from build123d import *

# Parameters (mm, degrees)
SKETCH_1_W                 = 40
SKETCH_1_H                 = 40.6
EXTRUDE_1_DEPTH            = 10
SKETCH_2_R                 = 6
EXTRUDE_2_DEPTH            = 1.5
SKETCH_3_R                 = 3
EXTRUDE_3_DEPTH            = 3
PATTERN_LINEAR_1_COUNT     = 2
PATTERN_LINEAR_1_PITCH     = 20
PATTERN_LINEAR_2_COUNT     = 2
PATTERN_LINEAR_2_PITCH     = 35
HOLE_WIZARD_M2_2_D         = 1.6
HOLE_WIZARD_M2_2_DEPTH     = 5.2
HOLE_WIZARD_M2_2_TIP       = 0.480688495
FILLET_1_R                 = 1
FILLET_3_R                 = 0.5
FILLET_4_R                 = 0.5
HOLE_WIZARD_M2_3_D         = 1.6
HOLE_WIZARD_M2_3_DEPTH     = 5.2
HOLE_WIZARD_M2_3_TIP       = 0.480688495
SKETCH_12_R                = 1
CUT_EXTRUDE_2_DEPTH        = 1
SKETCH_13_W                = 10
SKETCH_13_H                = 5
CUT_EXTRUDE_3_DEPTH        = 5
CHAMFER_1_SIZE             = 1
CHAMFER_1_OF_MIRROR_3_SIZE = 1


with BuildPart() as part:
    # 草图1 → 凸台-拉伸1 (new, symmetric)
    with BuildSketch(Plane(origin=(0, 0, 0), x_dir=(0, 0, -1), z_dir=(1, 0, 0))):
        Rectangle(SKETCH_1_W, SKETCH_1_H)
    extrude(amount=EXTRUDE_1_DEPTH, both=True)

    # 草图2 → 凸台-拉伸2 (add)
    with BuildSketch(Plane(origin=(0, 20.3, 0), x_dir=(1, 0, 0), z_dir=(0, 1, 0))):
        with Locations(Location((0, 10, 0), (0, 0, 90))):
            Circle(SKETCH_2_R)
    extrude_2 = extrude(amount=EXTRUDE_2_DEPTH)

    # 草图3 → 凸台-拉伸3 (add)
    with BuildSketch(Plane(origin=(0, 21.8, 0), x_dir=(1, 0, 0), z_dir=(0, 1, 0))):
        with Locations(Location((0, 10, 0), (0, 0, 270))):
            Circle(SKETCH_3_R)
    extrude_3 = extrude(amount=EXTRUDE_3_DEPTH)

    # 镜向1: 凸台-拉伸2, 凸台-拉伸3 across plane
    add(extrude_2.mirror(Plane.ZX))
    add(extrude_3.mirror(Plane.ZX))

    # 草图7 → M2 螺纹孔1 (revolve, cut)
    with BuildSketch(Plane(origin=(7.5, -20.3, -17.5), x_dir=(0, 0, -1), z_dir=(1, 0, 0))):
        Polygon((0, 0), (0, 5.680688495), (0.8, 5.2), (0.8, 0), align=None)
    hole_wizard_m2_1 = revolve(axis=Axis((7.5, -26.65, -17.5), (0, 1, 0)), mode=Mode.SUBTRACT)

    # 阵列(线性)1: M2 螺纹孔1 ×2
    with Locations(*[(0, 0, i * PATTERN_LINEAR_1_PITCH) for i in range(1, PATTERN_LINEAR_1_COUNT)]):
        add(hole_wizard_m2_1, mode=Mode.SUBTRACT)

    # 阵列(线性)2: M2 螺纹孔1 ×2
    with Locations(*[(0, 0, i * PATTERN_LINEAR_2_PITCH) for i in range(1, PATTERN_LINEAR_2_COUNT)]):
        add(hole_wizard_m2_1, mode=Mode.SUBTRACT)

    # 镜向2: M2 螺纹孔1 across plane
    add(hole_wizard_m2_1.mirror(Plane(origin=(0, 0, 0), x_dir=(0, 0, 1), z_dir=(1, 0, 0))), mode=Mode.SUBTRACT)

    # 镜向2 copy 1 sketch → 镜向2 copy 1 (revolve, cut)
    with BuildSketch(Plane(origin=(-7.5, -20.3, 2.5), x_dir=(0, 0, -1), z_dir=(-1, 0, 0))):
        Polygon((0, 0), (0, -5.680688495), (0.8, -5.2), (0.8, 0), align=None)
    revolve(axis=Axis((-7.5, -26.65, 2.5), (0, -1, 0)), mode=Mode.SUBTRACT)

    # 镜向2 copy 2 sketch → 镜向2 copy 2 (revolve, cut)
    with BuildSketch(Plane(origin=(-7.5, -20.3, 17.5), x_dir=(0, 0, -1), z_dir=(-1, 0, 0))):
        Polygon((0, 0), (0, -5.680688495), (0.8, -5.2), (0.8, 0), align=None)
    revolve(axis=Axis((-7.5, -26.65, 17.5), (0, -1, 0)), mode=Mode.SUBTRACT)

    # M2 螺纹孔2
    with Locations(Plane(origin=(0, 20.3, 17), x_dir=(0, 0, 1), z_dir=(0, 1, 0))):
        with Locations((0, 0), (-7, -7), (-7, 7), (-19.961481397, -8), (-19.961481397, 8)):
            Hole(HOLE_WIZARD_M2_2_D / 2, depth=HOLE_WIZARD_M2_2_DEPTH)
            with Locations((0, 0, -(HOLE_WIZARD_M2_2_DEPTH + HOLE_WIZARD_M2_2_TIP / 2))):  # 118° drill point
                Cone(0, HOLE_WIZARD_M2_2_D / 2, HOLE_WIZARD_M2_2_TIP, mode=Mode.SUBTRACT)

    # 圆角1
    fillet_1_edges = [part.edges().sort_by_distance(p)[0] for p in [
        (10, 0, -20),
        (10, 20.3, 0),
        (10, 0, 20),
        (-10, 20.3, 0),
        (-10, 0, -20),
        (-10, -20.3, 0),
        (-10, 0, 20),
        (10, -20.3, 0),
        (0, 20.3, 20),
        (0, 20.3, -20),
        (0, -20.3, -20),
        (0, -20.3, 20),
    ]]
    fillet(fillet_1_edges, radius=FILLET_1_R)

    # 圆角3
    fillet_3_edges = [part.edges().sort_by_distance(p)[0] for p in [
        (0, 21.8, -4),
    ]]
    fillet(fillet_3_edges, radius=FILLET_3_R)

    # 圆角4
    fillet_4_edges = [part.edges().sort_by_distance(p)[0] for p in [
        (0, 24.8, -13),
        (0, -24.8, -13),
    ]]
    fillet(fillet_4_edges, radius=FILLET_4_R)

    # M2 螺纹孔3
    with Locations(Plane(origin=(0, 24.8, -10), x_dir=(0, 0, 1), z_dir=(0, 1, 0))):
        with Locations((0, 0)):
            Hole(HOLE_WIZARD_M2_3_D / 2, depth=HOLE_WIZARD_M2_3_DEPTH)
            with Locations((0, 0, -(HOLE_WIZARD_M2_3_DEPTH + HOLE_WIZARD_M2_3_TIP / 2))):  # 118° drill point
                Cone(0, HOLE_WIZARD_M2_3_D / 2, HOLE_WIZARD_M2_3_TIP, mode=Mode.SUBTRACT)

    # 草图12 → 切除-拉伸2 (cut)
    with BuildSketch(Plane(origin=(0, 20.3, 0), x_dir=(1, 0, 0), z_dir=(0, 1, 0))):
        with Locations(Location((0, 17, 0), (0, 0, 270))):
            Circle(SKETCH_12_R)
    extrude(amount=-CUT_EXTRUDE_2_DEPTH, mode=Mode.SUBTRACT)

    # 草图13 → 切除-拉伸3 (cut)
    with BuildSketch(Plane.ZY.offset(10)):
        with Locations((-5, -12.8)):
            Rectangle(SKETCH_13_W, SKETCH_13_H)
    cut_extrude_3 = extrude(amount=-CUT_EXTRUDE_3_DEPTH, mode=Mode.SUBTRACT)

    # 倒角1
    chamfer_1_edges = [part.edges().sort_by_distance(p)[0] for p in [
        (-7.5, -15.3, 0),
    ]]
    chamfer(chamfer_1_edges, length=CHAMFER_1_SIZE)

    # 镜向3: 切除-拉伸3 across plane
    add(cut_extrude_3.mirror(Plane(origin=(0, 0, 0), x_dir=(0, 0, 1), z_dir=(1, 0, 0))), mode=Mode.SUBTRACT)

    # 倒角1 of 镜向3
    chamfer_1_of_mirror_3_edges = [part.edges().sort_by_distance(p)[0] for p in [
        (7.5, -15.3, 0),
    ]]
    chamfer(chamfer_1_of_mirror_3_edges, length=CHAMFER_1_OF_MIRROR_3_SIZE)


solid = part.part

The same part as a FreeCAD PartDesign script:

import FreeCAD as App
import Part
import Sketcher

V = App.Vector
Q = App.Units.Quantity


def edges_at(feature, points):
    """Names of the edges that pass closest to the given points."""
    edges = feature.Shape.Edges
    near = lambda p: min(range(len(edges)), key=lambda i: edges[i].distToShape(Part.Vertex(*p))[0])
    return sorted({f"Edge{near(p) + 1}" for p in points})

doc = App.newDocument("Part")
params = doc.addObject("Spreadsheet::Sheet", "Params")
for row, (alias, value) in enumerate([
    ("sketch1_height", "40 mm"),
    ("sketch1_width", "40.6 mm"),
    ("pad1_length", "20 mm"),
    ("sketch2_diameter", "12 mm"),
    ("pad2_length", "1.5 mm"),
    ("sketch3_diameter", "6 mm"),
    ("pad3_length", "3 mm"),
    ("sketch4_width", "5.2 mm"),
    ("sketch4_height", "0.8 mm"),
    ("groove_angle", "360 deg"),
    ("linearpattern_pitch", "20 mm"),
    ("linearpattern2_pitch", "35 mm"),
    ("sketch5_width", "5.2 mm"),
    ("sketch5_height", "0.8 mm"),
    ("groove2_angle", "360 deg"),
    ("sketch6_width", "5.2 mm"),
    ("sketch6_height", "0.8 mm"),
    ("groove3_angle", "360 deg"),
    ("sketch7_diameter", "1.6 mm"),
    ("hole_diameter", "1.6 mm"),
    ("hole_depth", "5.2 mm"),
    ("fillet_radius", "1 mm"),
    ("fillet2_radius", "0.5 mm"),
    ("fillet3_radius", "0.5 mm"),
    ("sketch8_diameter", "1.6 mm"),
    ("hole2_diameter", "1.6 mm"),
    ("hole2_depth", "5.2 mm"),
    ("sketch9_diameter", "2 mm"),
    ("pocket1_length", "1 mm"),
    ("sketch10_width", "5 mm"),
    ("sketch10_height", "10 mm"),
    ("pocket2_length", "5 mm"),
    ("chamfer_size", "1 mm"),
    ("chamfer2_size", "1 mm"),
], start=1):
    params.set(f"A{row}", alias)
    params.set(f"B{row}", "=" + value)
    params.setAlias(f"B{row}", alias)

body = doc.addObject("PartDesign::Body", "Body")

# Sketch on YZ plane
sketch1 = body.newObject("Sketcher::SketchObject", "Sketch")
sketch1.AttachmentSupport = (doc.getObject("YZ_Plane"), [""])
sketch1.MapMode = "FlatFace"
sketch1.addGeometry(Part.LineSegment(V(20, 20, 0), V(-20, 20, 0)), False)
sketch1.addGeometry(Part.LineSegment(V(-20, 20, 0), V(-20, -20, 0)), False)
sketch1.addGeometry(Part.LineSegment(V(-20, -20, 0), V(20, -20, 0)), False)
sketch1.addGeometry(Part.LineSegment(V(20, -20, 0), V(20, 20, 0)), False)
sketch1.addConstraint(Sketcher.Constraint("Coincident", 0, 2, 1, 1))
sketch1.addConstraint(Sketcher.Constraint("Coincident", 1, 2, 2, 1))
sketch1.addConstraint(Sketcher.Constraint("Coincident", 2, 2, 3, 1))
sketch1.addConstraint(Sketcher.Constraint("Coincident", 3, 2, 0, 1))
sketch1.addConstraint(Sketcher.Constraint("Horizontal", 0))
sketch1.addConstraint(Sketcher.Constraint("Vertical", 1))
sketch1.addConstraint(Sketcher.Constraint("Horizontal", 2))
sketch1.addConstraint(Sketcher.Constraint("Vertical", 3))
sketch1.addConstraint(Sketcher.Constraint("Symmetric", 0, 2, 2, 2, -1, 1))
sketch1.addConstraint(Sketcher.Constraint("DistanceY", 1, 2, 1, 1, 40.0))
sketch1.addConstraint(Sketcher.Constraint("DistanceX", 0, 2, 0, 1, 40.6))
sketch1.setExpression("Constraints[9]", "Params.sketch1_height")
sketch1.setExpression("Constraints[10]", "Params.sketch1_width")
pad1 = body.newObject("PartDesign::Pad", "Pad")
pad1.Profile = sketch1
pad1.setExpression("Length", "Params.pad1_length")
pad1.Midplane = True

# Sketch on XZ plane
sketch2 = body.newObject("Sketcher::SketchObject", "Sketch001")
sketch2.AttachmentSupport = (doc.getObject("XZ_Plane"), [""])
sketch2.MapMode = "FlatFace"
sketch2.AttachmentOffset = App.Placement(V(0, 0, -20.3), App.Rotation())
sketch2.addGeometry(Part.Circle(V(0, -10, 0), V(0, 0, 1), 6), False)
sketch2.addConstraint(Sketcher.Constraint("PointOnObject", 0, 3, -2))
sketch2.addConstraint(Sketcher.Constraint("Diameter", 0, 12.0))
sketch2.addConstraint(Sketcher.Constraint("DistanceY", 0, 3, -1, 1, 10.0))
sketch2.setExpression("Constraints[1]", "Params.sketch2_diameter")
pad2 = body.newObject("PartDesign::Pad", "Pad001")
pad2.Profile = sketch2
pad2.setExpression("Length", "Params.pad2_length")
pad2.Reversed = True

# Sketch on XZ plane
sketch3 = body.newObject("Sketcher::SketchObject", "Sketch002")
sketch3.AttachmentSupport = (doc.getObject("XZ_Plane"), [""])
sketch3.MapMode = "FlatFace"
sketch3.AttachmentOffset = App.Placement(V(0, 0, -21.8), App.Rotation())
sketch3.addGeometry(Part.Circle(V(0, -10, 0), V(0, 0, 1), 3), False)
sketch3.addConstraint(Sketcher.Constraint("PointOnObject", 0, 3, -2))
sketch3.addConstraint(Sketcher.Constraint("Diameter", 0, 6.0))
sketch3.addConstraint(Sketcher.Constraint("DistanceY", 0, 3, -1, 1, 10.0))
sketch3.setExpression("Constraints[1]", "Params.sketch3_diameter")
pad3 = body.newObject("PartDesign::Pad", "Pad002")
pad3.Profile = sketch3
pad3.setExpression("Length", "Params.pad3_length")
pad3.Reversed = True
doc.recompute()

mirrored = body.newObject("PartDesign::Mirrored", "Mirrored")
mirrored.Originals = [pad2, pad3]
mirrored.MirrorPlane = (doc.getObject("XZ_Plane"), [""])
body.Tip = mirrored

# Sketch on YZ plane
sketch4 = body.newObject("Sketcher::SketchObject", "Sketch003")
sketch4.AttachmentSupport = (doc.getObject("YZ_Plane"), [""])
sketch4.MapMode = "FlatFace"
sketch4.AttachmentOffset = App.Placement(V(0, 0, 7.5), App.Rotation())
sketch4.addGeometry(Part.LineSegment(V(-14.6, -17.5, 0), V(-20.3, -17.5, 0)), False)
sketch4.addGeometry(Part.LineSegment(V(-20.3, -17.5, 0), V(-20.3, -18.3, 0)), False)
sketch4.addGeometry(Part.LineSegment(V(-20.3, -18.3, 0), V(-15.1, -18.3, 0)), False)
sketch4.addGeometry(Part.LineSegment(V(-15.1, -18.3, 0), V(-14.6, -17.5, 0)), False)
sketch4.addGeometry(Part.LineSegment(V(-20.3, -17.5, 0), V(-14.6, -17.5, 0)), True)  # axis
sketch4.addConstraint(Sketcher.Constraint("Coincident", 0, 2, 1, 1))
sketch4.addConstraint(Sketcher.Constraint("Coincident", 1, 2, 2, 1))
sketch4.addConstraint(Sketcher.Constraint("Coincident", 2, 2, 3, 1))
sketch4.addConstraint(Sketcher.Constraint("Coincident", 3, 2, 0, 1))
sketch4.addConstraint(Sketcher.Constraint("Horizontal", 0))
sketch4.addConstraint(Sketcher.Constraint("Vertical", 1))
sketch4.addConstraint(Sketcher.Constraint("Horizontal", 2))
sketch4.addConstraint(Sketcher.Constraint("Horizontal", 4))
sketch4.addConstraint(Sketcher.Constraint("Coincident", 4, 1, 0, 2))
sketch4.addConstraint(Sketcher.Constraint("Equal", 0, 4))
sketch4.addConstraint(Sketcher.Constraint("Angle", 3, Q("59 deg")))
sketch4.addConstraint(Sketcher.Constraint("DistanceX", 2, 1, 2, 2, 5.2))
sketch4.addConstraint(Sketcher.Constraint("DistanceY", 1, 2, 1, 1, 0.8))
sketch4.addConstraint(Sketcher.Constraint("DistanceX", 0, 2, -1, 1, 20.3))
sketch4.addConstraint(Sketcher.Constraint("DistanceY", 0, 2, -1, 1, 17.5))
sketch4.setExpression("Constraints[11]", "Params.sketch4_width")
sketch4.setExpression("Constraints[12]", "Params.sketch4_height")
groove = body.newObject("PartDesign::Groove", "Groove")
groove.Profile = sketch4
groove.ReferenceAxis = (sketch4, ["Axis0"])
groove.setExpression("Angle", "Params.groove_angle")
doc.recompute()

linearpattern = body.newObject("PartDesign::LinearPattern", "LinearPattern")
linearpattern.Originals = [groove]
linearpattern.Direction = (doc.getObject("Z_Axis"), [""])
linearpattern.Mode = "offset"
linearpattern.setExpression("Offset", "Params.linearpattern_pitch")
linearpattern.Occurrences = 2
body.Tip = linearpattern
doc.recompute()

linearpattern2 = body.newObject("PartDesign::LinearPattern", "LinearPattern001")
linearpattern2.Originals = [groove]
linearpattern2.Direction = (doc.getObject("Z_Axis"), [""])
linearpattern2.Mode = "offset"
linearpattern2.setExpression("Offset", "Params.linearpattern2_pitch")
linearpattern2.Occurrences = 2
body.Tip = linearpattern2
doc.recompute()

mirrored2 = body.newObject("PartDesign::Mirrored", "Mirrored001")
mirrored2.Originals = [groove]
mirrored2.MirrorPlane = (doc.getObject("YZ_Plane"), [""])
body.Tip = mirrored2

# Sketch on YZ plane
sketch5 = body.newObject("Sketcher::SketchObject", "Sketch004")
sketch5.AttachmentSupport = (doc.getObject("YZ_Plane"), [""])
sketch5.MapMode = "FlatFace"
sketch5.AttachmentOffset = App.Placement(V(0, 0, -7.5), App.Rotation())
sketch5.addGeometry(Part.LineSegment(V(-20.3, 2.5, 0), V(-14.6, 2.5, 0)), False)
sketch5.addGeometry(Part.LineSegment(V(-14.6, 2.5, 0), V(-15.1, 1.7, 0)), False)
sketch5.addGeometry(Part.LineSegment(V(-15.1, 1.7, 0), V(-20.3, 1.7, 0)), False)
sketch5.addGeometry(Part.LineSegment(V(-20.3, 1.7, 0), V(-20.3, 2.5, 0)), False)
sketch5.addGeometry(Part.LineSegment(V(-14.6, 2.5, 0), V(-20.3, 2.5, 0)), True)  # axis
sketch5.addConstraint(Sketcher.Constraint("Coincident", 0, 2, 1, 1))
sketch5.addConstraint(Sketcher.Constraint("Coincident", 1, 2, 2, 1))
sketch5.addConstraint(Sketcher.Constraint("Coincident", 2, 2, 3, 1))
sketch5.addConstraint(Sketcher.Constraint("Coincident", 3, 2, 0, 1))
sketch5.addConstraint(Sketcher.Constraint("Horizontal", 0))
sketch5.addConstraint(Sketcher.Constraint("Horizontal", 2))
sketch5.addConstraint(Sketcher.Constraint("Vertical", 3))
sketch5.addConstraint(Sketcher.Constraint("Horizontal", 4))
sketch5.addConstraint(Sketcher.Constraint("Coincident", 4, 1, 0, 2))
sketch5.addConstraint(Sketcher.Constraint("Vertical", 2, 2, 4, 2))
sketch5.addConstraint(Sketcher.Constraint("Angle", 1, Q("-121 deg")))
sketch5.addConstraint(Sketcher.Constraint("DistanceX", 2, 2, 2, 1, 5.2))
sketch5.addConstraint(Sketcher.Constraint("DistanceY", 3, 1, 3, 2, 0.8))
sketch5.addConstraint(Sketcher.Constraint("DistanceY", -1, 1, 0, 2, 2.5))
sketch5.addConstraint(Sketcher.Constraint("DistanceX", 1, 2, -1, 1, 15.1))
sketch5.setExpression("Constraints[11]", "Params.sketch5_width")
sketch5.setExpression("Constraints[12]", "Params.sketch5_height")
groove2 = body.newObject("PartDesign::Groove", "Groove001")
groove2.Profile = sketch5
groove2.ReferenceAxis = (sketch5, ["Axis0"])
groove2.setExpression("Angle", "Params.groove2_angle")

# Sketch on YZ plane
sketch6 = body.newObject("Sketcher::SketchObject", "Sketch005")
sketch6.AttachmentSupport = (doc.getObject("YZ_Plane"), [""])
sketch6.MapMode = "FlatFace"
sketch6.AttachmentOffset = App.Placement(V(0, 0, -7.5), App.Rotation())
sketch6.addGeometry(Part.LineSegment(V(-20.3, 17.5, 0), V(-14.6, 17.5, 0)), False)
sketch6.addGeometry(Part.LineSegment(V(-14.6, 17.5, 0), V(-15.1, 16.7, 0)), False)
sketch6.addGeometry(Part.LineSegment(V(-15.1, 16.7, 0), V(-20.3, 16.7, 0)), False)
sketch6.addGeometry(Part.LineSegment(V(-20.3, 16.7, 0), V(-20.3, 17.5, 0)), False)
sketch6.addGeometry(Part.LineSegment(V(-14.6, 17.5, 0), V(-20.3, 17.5, 0)), True)  # axis
sketch6.addConstraint(Sketcher.Constraint("Coincident", 0, 2, 1, 1))
sketch6.addConstraint(Sketcher.Constraint("Coincident", 1, 2, 2, 1))
sketch6.addConstraint(Sketcher.Constraint("Coincident", 2, 2, 3, 1))
sketch6.addConstraint(Sketcher.Constraint("Coincident", 3, 2, 0, 1))
sketch6.addConstraint(Sketcher.Constraint("Horizontal", 0))
sketch6.addConstraint(Sketcher.Constraint("Horizontal", 2))
sketch6.addConstraint(Sketcher.Constraint("Vertical", 3))
sketch6.addConstraint(Sketcher.Constraint("Horizontal", 4))
sketch6.addConstraint(Sketcher.Constraint("Coincident", 4, 1, 0, 2))
sketch6.addConstraint(Sketcher.Constraint("Vertical", 2, 2, 4, 2))
sketch6.addConstraint(Sketcher.Constraint("Angle", 1, Q("-121 deg")))
sketch6.addConstraint(Sketcher.Constraint("DistanceX", 2, 2, 2, 1, 5.2))
sketch6.addConstraint(Sketcher.Constraint("DistanceY", 3, 1, 3, 2, 0.8))
sketch6.addConstraint(Sketcher.Constraint("DistanceY", -1, 1, 0, 2, 17.5))
sketch6.addConstraint(Sketcher.Constraint("DistanceX", 1, 2, -1, 1, 15.1))
sketch6.setExpression("Constraints[11]", "Params.sketch6_width")
sketch6.setExpression("Constraints[12]", "Params.sketch6_height")
groove3 = body.newObject("PartDesign::Groove", "Groove002")
groove3.Profile = sketch6
groove3.ReferenceAxis = (sketch6, ["Axis0"])
groove3.setExpression("Angle", "Params.groove3_angle")

# Sketch on XZ plane
sketch7 = body.newObject("Sketcher::SketchObject", "Sketch006")
sketch7.AttachmentSupport = (doc.getObject("XZ_Plane"), [""])
sketch7.MapMode = "FlatFace"
sketch7.AttachmentOffset = App.Placement(V(0, 0, -20.3), App.Rotation())
sketch7.addGeometry(Part.Circle(V(0, 17, 0), V(0, 0, 1), 0.8), False)
sketch7.addGeometry(Part.Circle(V(-7, 10, 0), V(0, 0, 1), 0.8), False)
sketch7.addGeometry(Part.Circle(V(7, 10, 0), V(0, 0, 1), 0.8), False)
sketch7.addGeometry(Part.Circle(V(-8, -3, 0), V(0, 0, 1), 0.8), False)
sketch7.addGeometry(Part.Circle(V(8, -3, 0), V(0, 0, 1), 0.8), False)
sketch7.addConstraint(Sketcher.Constraint("Equal", 0, 1))
sketch7.addConstraint(Sketcher.Constraint("Equal", 1, 2))
sketch7.addConstraint(Sketcher.Constraint("Equal", 2, 3))
sketch7.addConstraint(Sketcher.Constraint("Equal", 3, 4))
sketch7.addConstraint(Sketcher.Constraint("Symmetric", 1, 3, 2, 3, -2))
sketch7.addConstraint(Sketcher.Constraint("Symmetric", 3, 3, 4, 3, -2))
sketch7.addConstraint(Sketcher.Constraint("PointOnObject", 0, 3, -2))
sketch7.addConstraint(Sketcher.Constraint("Diameter", 0, 1.6))
sketch7.addConstraint(Sketcher.Constraint("DistanceY", -1, 1, 0, 3, 17.0))
sketch7.addConstraint(Sketcher.Constraint("DistanceX", 1, 3, -1, 1, 7.0))
sketch7.addConstraint(Sketcher.Constraint("DistanceY", -1, 1, 1, 3, 10.0))
sketch7.addConstraint(Sketcher.Constraint("DistanceX", 3, 3, -1, 1, 8.0))
sketch7.addConstraint(Sketcher.Constraint("DistanceY", 3, 3, -1, 1, 2.961481))
sketch7.setExpression("Constraints[7]", "Params.sketch7_diameter")
doc.recompute()
hole = body.newObject("PartDesign::Hole", "Hole")
hole.Profile = sketch7
hole.ThreadType = "None"
hole.setExpression("Diameter", "Params.hole_diameter")
hole.DepthType = "Dimension"
hole.setExpression("Depth", "Params.hole_depth")
hole.DrillPoint = "Angled"
hole.DrillPointAngle = 118
hole.Reversed = True
doc.recompute()

fillet = body.newObject("PartDesign::Fillet", "Fillet")
fillet.Base = (hole, edges_at(hole, [
    (10, 0, -20),
    (10, 20.3, 0),
    (10, 0, 20),
    (-10, 20.3, 0),
    (-10, 0, -20),
    (-10, -20.3, 0),
    (-10, 0, 20),
    (10, -20.3, 0),
    (0, 20.3, 20),
    (0, 20.3, -20),
    (0, -20.3, -20),
    (0, -20.3, 20),
]))
fillet.setExpression("Radius", "Params.fillet_radius")
doc.recompute()

fillet2 = body.newObject("PartDesign::Fillet", "Fillet001")
fillet2.Base = (fillet, edges_at(fillet, [(0, 21.8, -4)]))
fillet2.setExpression("Radius", "Params.fillet2_radius")
doc.recompute()

fillet3 = body.newObject("PartDesign::Fillet", "Fillet002")
fillet3.Base = (fillet2, edges_at(fillet2, [(0, 24.8, -13), (0, -24.8, -13)]))
fillet3.setExpression("Radius", "Params.fillet3_radius")

# Sketch on XZ plane
sketch8 = body.newObject("Sketcher::SketchObject", "Sketch007")
sketch8.AttachmentSupport = (doc.getObject("XZ_Plane"), [""])
sketch8.MapMode = "FlatFace"
sketch8.AttachmentOffset = App.Placement(V(0, 0, -24.8), App.Rotation())
sketch8.addGeometry(Part.Circle(V(0, -10, 0), V(0, 0, 1), 0.8), False)
sketch8.addConstraint(Sketcher.Constraint("PointOnObject", 0, 3, -2))
sketch8.addConstraint(Sketcher.Constraint("Diameter", 0, 1.6))
sketch8.addConstraint(Sketcher.Constraint("DistanceY", 0, 3, -1, 1, 10.0))
sketch8.setExpression("Constraints[1]", "Params.sketch8_diameter")
doc.recompute()
hole2 = body.newObject("PartDesign::Hole", "Hole001")
hole2.Profile = sketch8
hole2.ThreadType = "None"
hole2.setExpression("Diameter", "Params.hole2_diameter")
hole2.DepthType = "Dimension"
hole2.setExpression("Depth", "Params.hole2_depth")
hole2.DrillPoint = "Angled"
hole2.DrillPointAngle = 118
hole2.Reversed = True

# Sketch on XZ plane
sketch9 = body.newObject("Sketcher::SketchObject", "Sketch008")
sketch9.AttachmentSupport = (doc.getObject("XZ_Plane"), [""])
sketch9.MapMode = "FlatFace"
sketch9.AttachmentOffset = App.Placement(V(0, 0, -20.3), App.Rotation())
sketch9.addGeometry(Part.Circle(V(0, -17, 0), V(0, 0, 1), 1), False)
sketch9.addConstraint(Sketcher.Constraint("PointOnObject", 0, 3, -2))
sketch9.addConstraint(Sketcher.Constraint("Diameter", 0, 2.0))
sketch9.addConstraint(Sketcher.Constraint("DistanceY", 0, 3, -1, 1, 17.0))
sketch9.setExpression("Constraints[1]", "Params.sketch9_diameter")
pocket1 = body.newObject("PartDesign::Pocket", "Pocket")
pocket1.Profile = sketch9
pocket1.setExpression("Length", "Params.pocket1_length")
pocket1.Reversed = True

# Sketch on YZ plane
sketch10 = body.newObject("Sketcher::SketchObject", "Sketch009")
sketch10.AttachmentSupport = (doc.getObject("YZ_Plane"), [""])
sketch10.MapMode = "FlatFace"
sketch10.AttachmentOffset = App.Placement(V(0, 0, -10), App.Rotation())
sketch10.addGeometry(Part.LineSegment(V(-10, -10, 0), V(-15, -10, 0)), False)
sketch10.addGeometry(Part.LineSegment(V(-15, -10, 0), V(-15, 0, 0)), False)
sketch10.addGeometry(Part.LineSegment(V(-15, 0, 0), V(-10, 0, 0)), False)
sketch10.addGeometry(Part.LineSegment(V(-10, 0, 0), V(-10, -10, 0)), False)
sketch10.addConstraint(Sketcher.Constraint("Coincident", 0, 2, 1, 1))
sketch10.addConstraint(Sketcher.Constraint("Coincident", 1, 2, 2, 1))
sketch10.addConstraint(Sketcher.Constraint("Coincident", 2, 2, 3, 1))
sketch10.addConstraint(Sketcher.Constraint("Coincident", 3, 2, 0, 1))
sketch10.addConstraint(Sketcher.Constraint("Horizontal", 0))
sketch10.addConstraint(Sketcher.Constraint("Vertical", 1))
sketch10.addConstraint(Sketcher.Constraint("Horizontal", 2))
sketch10.addConstraint(Sketcher.Constraint("Vertical", 3))
sketch10.addConstraint(Sketcher.Constraint("PointOnObject", 1, 2, -1))
sketch10.addConstraint(Sketcher.Constraint("DistanceX", 0, 2, 0, 1, 5.0))
sketch10.addConstraint(Sketcher.Constraint("DistanceY", 1, 1, 1, 2, 10.0))
sketch10.addConstraint(Sketcher.Constraint("DistanceX", 0, 2, -1, 1, 15.3))
sketch10.setExpression("Constraints[9]", "Params.sketch10_width")
sketch10.setExpression("Constraints[10]", "Params.sketch10_height")
pocket2 = body.newObject("PartDesign::Pocket", "Pocket001")
pocket2.Profile = sketch10
pocket2.setExpression("Length", "Params.pocket2_length")
pocket2.Reversed = True
doc.recompute()

chamfer = body.newObject("PartDesign::Chamfer", "Chamfer")
chamfer.Base = (pocket2, edges_at(pocket2, [(-7.5, -15.3, 0)]))
chamfer.setExpression("Size", "Params.chamfer_size")
doc.recompute()

mirrored3 = body.newObject("PartDesign::Mirrored", "Mirrored002")
mirrored3.Originals = [pocket2]
mirrored3.MirrorPlane = (doc.getObject("YZ_Plane"), [""])
body.Tip = mirrored3
doc.recompute()

chamfer2 = body.newObject("PartDesign::Chamfer", "Chamfer001")
chamfer2.Base = (mirrored3, edges_at(mirrored3, [(7.5, -15.3, 0)]))
chamfer2.setExpression("Size", "Params.chamfer2_size")

doc.recompute()
